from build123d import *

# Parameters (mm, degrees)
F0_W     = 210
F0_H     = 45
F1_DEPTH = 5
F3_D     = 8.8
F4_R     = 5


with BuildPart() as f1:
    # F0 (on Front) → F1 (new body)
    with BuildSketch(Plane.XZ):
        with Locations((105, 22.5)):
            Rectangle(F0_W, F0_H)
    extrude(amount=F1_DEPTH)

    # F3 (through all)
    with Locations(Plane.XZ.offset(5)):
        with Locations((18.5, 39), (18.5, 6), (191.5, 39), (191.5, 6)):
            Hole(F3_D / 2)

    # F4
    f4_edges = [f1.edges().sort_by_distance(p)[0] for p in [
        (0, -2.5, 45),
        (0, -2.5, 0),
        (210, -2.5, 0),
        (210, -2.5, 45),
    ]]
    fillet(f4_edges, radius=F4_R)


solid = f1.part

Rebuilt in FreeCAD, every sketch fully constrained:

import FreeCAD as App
import Part
import Sketcher

V = App.Vector
Q = App.Units.Quantity


def edges_at(feature, points):
    """Names of the edges that pass closest to the given points."""
    edges = feature.Shape.Edges
    near = lambda p: min(range(len(edges)), key=lambda i: edges[i].distToShape(Part.Vertex(*p))[0])
    return sorted({f"Edge{near(p) + 1}" for p in points})


def add_polygon(sketch, points):
    """Adds a closed chain of lines whose ends are joined by coincident constraints."""
    first, n = sketch.GeometryCount, len(points)
    for a, b in zip(points, points[1:] + points[:1]):
        sketch.addGeometry(Part.LineSegment(App.Vector(*a, 0), App.Vector(*b, 0)), False)
    for i in range(n):
        sketch.addConstraint(Sketcher.Constraint("Coincident", first + i, 2, first + (i + 1) % n, 1))

doc = App.newDocument("Part")
params = doc.addObject("Spreadsheet::Sheet", "Params")
for row, (alias, value) in enumerate([
    ("sketch1_width", "210 mm"),
    ("sketch1_height", "45 mm"),
    ("pad1_length", "5 mm"),
    ("sketch2_diameter", "8.8 mm"),
    ("hole_diameter", "8.8 mm"),
    ("fillet_radius", "5 mm"),
], start=1):
    params.set(f"A{row}", alias)
    params.set(f"B{row}", "=" + value)
    params.setAlias(f"B{row}", alias)

body = doc.addObject("PartDesign::Body", "Body")

sketch1 = doc.addObject("Sketcher::SketchObject", "Sketch")
body.addObject(sketch1)
sketch1.AttachmentSupport = (doc.XZ_Plane, [""])
sketch1.MapMode = "FlatFace"
add_polygon(sketch1, [(0, 45), (0, 0), (210, 0), (210, 45)])
sketch1.addConstraint(Sketcher.Constraint("Vertical", 0))
sketch1.addConstraint(Sketcher.Constraint("Horizontal", 1))
sketch1.addConstraint(Sketcher.Constraint("Vertical", 2))
sketch1.addConstraint(Sketcher.Constraint("Horizontal", 3))
sketch1.addConstraint(Sketcher.Constraint("Coincident", 0, 2, -1, 1))
sketch1.addConstraint(Sketcher.Constraint("DistanceX", 1, 1, 1, 2, Q("210 mm")))
sketch1.addConstraint(Sketcher.Constraint("DistanceY", 0, 2, 0, 1, Q("45 mm")))
sketch1.setExpression("Constraints[9]", "Params.sketch1_width")
sketch1.setExpression("Constraints[10]", "Params.sketch1_height")
pad1 = doc.addObject("PartDesign::Pad", "Pad")
body.addObject(pad1)
pad1.Profile = sketch1
pad1.setExpression("Length", "Params.pad1_length")

sketch2 = doc.addObject("Sketcher::SketchObject", "Sketch001")
body.addObject(sketch2)
sketch2.AttachmentSupport = (doc.XZ_Plane, [""])
sketch2.MapMode = "FlatFace"
sketch2.AttachmentOffset = App.Placement(V(0, 0, 5), App.Rotation())
sketch2.addGeometry(Part.Circle(V(18.5, 39, 0), V(0, 0, 1), 4.4), False)
sketch2.addGeometry(Part.Circle(V(18.5, 6, 0), V(0, 0, 1), 4.4), False)
sketch2.addGeometry(Part.Circle(V(191.5, 39, 0), V(0, 0, 1), 4.4), False)
sketch2.addGeometry(Part.Circle(V(191.5, 6, 0), V(0, 0, 1), 4.4), False)
sketch2.addConstraint(Sketcher.Constraint("Equal", 0, 1))
sketch2.addConstraint(Sketcher.Constraint("Equal", 1, 2))
sketch2.addConstraint(Sketcher.Constraint("Equal", 2, 3))
sketch2.addConstraint(Sketcher.Constraint("Horizontal", 0, 3, 2, 3))
sketch2.addConstraint(Sketcher.Constraint("Horizontal", 1, 3, 3, 3))
sketch2.addConstraint(Sketcher.Constraint("Vertical", 0, 3, 1, 3))
sketch2.addConstraint(Sketcher.Constraint("Vertical", 2, 3, 3, 3))
sketch2.addConstraint(Sketcher.Constraint("Diameter", 0, Q("8.8 mm")))
sketch2.addConstraint(Sketcher.Constraint("DistanceY", -1, 1, 0, 3, Q("39 mm")))
sketch2.addConstraint(Sketcher.Constraint("DistanceY", -1, 1, 1, 3, Q("6 mm")))
sketch2.addConstraint(Sketcher.Constraint("DistanceX", 0, 3, 2, 3, Q("173 mm")))
sketch2.addConstraint(Sketcher.Constraint("DistanceX", -1, 1, 0, 3, Q("18.5 mm")))
sketch2.setExpression("Constraints[7]", "Params.sketch2_diameter")
doc.recompute()
hole = doc.addObject("PartDesign::Hole", "Hole")
body.addObject(hole)
hole.Profile = sketch2
hole.ThreadType = "None"
hole.setExpression("Diameter", "Params.hole_diameter")
hole.DepthType = "ThroughAll"
doc.recompute()

fillet = doc.addObject("PartDesign::Fillet", "Fillet")
body.addObject(fillet)
fillet.Base = (hole, edges_at(hole, [
    (0, -2.5, 45),
    (0, -2.5, 0),
    (210, -2.5, 0),
    (210, -2.5, 45),
]))
fillet.setExpression("Radius", "Params.fillet_radius")

doc.recompute()
